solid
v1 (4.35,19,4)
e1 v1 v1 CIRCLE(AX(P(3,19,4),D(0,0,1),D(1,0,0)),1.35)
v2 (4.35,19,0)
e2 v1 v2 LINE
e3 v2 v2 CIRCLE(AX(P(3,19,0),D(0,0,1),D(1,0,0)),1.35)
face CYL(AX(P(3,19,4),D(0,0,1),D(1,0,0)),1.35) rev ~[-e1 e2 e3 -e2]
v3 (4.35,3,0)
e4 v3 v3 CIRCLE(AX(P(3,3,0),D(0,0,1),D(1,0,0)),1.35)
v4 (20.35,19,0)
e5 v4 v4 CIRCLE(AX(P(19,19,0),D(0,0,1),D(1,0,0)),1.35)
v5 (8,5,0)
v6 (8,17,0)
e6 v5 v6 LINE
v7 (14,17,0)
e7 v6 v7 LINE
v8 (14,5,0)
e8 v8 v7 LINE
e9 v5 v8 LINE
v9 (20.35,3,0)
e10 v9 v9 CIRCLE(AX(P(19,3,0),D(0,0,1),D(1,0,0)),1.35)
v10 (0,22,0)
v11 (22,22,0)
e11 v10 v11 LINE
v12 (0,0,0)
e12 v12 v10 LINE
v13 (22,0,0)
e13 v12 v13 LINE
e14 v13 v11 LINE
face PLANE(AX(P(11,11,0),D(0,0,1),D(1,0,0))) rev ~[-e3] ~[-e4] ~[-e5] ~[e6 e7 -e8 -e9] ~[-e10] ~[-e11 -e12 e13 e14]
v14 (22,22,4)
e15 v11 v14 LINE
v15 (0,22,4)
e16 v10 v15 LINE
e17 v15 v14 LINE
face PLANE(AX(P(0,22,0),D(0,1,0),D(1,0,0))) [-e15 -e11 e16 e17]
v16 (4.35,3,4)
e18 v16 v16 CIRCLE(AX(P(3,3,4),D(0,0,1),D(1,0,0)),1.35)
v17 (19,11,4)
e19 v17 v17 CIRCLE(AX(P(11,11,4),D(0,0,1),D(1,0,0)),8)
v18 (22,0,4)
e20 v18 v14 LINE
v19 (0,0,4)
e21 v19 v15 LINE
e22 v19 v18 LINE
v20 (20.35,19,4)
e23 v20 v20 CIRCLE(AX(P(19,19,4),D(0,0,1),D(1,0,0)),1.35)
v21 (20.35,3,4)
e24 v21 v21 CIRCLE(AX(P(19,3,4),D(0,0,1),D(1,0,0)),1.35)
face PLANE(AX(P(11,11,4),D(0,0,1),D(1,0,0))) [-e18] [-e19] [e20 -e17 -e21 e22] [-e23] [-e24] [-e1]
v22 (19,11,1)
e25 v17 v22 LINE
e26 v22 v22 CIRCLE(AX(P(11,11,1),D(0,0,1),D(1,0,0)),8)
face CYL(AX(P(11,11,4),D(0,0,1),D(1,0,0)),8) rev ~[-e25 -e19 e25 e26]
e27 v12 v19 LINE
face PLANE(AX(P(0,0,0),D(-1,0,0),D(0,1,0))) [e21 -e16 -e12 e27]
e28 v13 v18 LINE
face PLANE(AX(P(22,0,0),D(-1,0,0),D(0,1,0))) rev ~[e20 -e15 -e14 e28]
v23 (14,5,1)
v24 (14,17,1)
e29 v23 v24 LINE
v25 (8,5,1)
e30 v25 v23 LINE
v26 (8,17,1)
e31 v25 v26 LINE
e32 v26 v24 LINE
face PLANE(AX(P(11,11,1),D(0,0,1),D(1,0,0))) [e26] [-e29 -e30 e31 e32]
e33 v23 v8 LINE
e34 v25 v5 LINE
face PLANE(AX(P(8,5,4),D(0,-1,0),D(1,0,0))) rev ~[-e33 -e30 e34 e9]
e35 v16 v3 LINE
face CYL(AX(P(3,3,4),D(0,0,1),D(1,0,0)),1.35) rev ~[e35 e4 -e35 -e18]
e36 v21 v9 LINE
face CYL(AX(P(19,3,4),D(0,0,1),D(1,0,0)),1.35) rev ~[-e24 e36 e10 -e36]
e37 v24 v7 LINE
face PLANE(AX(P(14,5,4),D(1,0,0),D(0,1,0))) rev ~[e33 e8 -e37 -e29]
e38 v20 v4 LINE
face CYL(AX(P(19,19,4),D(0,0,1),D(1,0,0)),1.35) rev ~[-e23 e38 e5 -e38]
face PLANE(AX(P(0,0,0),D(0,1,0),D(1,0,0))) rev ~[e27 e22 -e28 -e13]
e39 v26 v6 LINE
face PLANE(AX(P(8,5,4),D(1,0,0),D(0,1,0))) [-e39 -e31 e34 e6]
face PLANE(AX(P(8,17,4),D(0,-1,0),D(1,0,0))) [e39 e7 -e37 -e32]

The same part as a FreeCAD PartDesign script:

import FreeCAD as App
import Part
import Sketcher


def add_polygon(sketch, points):
    """Adds a closed chain of lines whose ends are joined by coincident constraints."""
    first, n = sketch.GeometryCount, len(points)
    for a, b in zip(points, points[1:] + points[:1]):
        sketch.addGeometry(Part.LineSegment(App.Vector(*a, 0), App.Vector(*b, 0)), False)
    for i in range(n):
        sketch.addConstraint(Sketcher.Constraint("Coincident", first + i, 2, first + (i + 1) % n, 1))

doc = App.newDocument("Part")
body = doc.addObject("PartDesign::Body", "Body")

# Sketch on XY plane
sketch1 = body.newObject("Sketcher::SketchObject", "Sketch")
sketch1.AttachmentSupport = (doc.getObject("XY_Plane"), [""])
sketch1.MapMode = "FlatFace"
add_polygon(sketch1, [(0, 22), (0, 0), (22, 0), (22, 22)])  # lines 0-3
sketch1.addConstraint([
    Sketcher.Constraint("Vertical", 0),
    Sketcher.Constraint("Horizontal", 1),
    Sketcher.Constraint("Vertical", 2),
    Sketcher.Constraint("Horizontal", 3),
    Sketcher.Constraint("Coincident", 0, 2, -1, 1),
    Sketcher.Constraint("Equal", 3, 0),
    Sketcher.Constraint("DistanceX", 1, 1, 1, 2, 22.0),
])
pad1 = body.newObject("PartDesign::Pad", "Pad")
pad1.Profile = sketch1
pad1.Length = 4

# Sketch on XY plane
sketch2 = body.newObject("Sketcher::SketchObject", "Sketch001")
sketch2.AttachmentSupport = (doc.getObject("XY_Plane"), [""])
sketch2.MapMode = "FlatFace"
sketch2.AttachmentOffset = App.Placement(App.Vector(0, 0, 4), App.Rotation())
sketch2.addGeometry([
    Part.Circle(App.Vector(3, 3, 0), App.Vector(0, 0, 1), 1.4),
    Part.Circle(App.Vector(3, 19, 0), App.Vector(0, 0, 1), 1.4),
    Part.Circle(App.Vector(19, 3, 0), App.Vector(0, 0, 1), 1.4),
    Part.Circle(App.Vector(19, 19, 0), App.Vector(0, 0, 1), 1.4),
], False)
sketch2.addConstraint([
    Sketcher.Constraint("Equal", 0, 1),
    Sketcher.Constraint("Equal", 1, 2),
    Sketcher.Constraint("Equal", 2, 3),
    Sketcher.Constraint("Horizontal", 0, 3, 2, 3),
    Sketcher.Constraint("Horizontal", 1, 3, 3, 3),
    Sketcher.Constraint("Vertical", 0, 3, 1, 3),
    Sketcher.Constraint("Vertical", 2, 3, 3, 3),
    Sketcher.Constraint("Diameter", 0, 2.7),
    Sketcher.Constraint("DistanceX", -1, 1, 0, 3, 3.0),
    Sketcher.Constraint("DistanceY", -1, 1, 0, 3, 3.0),
    Sketcher.Constraint("DistanceY", -1, 1, 1, 3, 19.0),
    Sketcher.Constraint("DistanceX", -1, 1, 2, 3, 19.0),
])
pocket1 = body.newObject("PartDesign::Pocket", "Pocket")
pocket1.Profile = sketch2
pocket1.Type = "ThroughAll"

# Sketch on XY plane
sketch3 = body.newObject("Sketcher::SketchObject", "Sketch002")
sketch3.AttachmentSupport = (doc.getObject("XY_Plane"), [""])
sketch3.MapMode = "FlatFace"
sketch3.AttachmentOffset = App.Placement(App.Vector(0, 0, 4), App.Rotation())
add_polygon(sketch3, [(8, 17), (8, 5), (14, 5), (14, 17)])  # lines 0-3
sketch3.addConstraint([
    Sketcher.Constraint("Vertical", 0),
    Sketcher.Constraint("Horizontal", 1),
    Sketcher.Constraint("Vertical", 2),
    Sketcher.Constraint("Horizontal", 3),
    Sketcher.Constraint("DistanceX", 1, 1, 1, 2, 6.0),
    Sketcher.Constraint("DistanceY", 0, 2, 0, 1, 12.0),
    Sketcher.Constraint("DistanceX", -1, 1, 0, 2, 8.0),
    Sketcher.Constraint("DistanceY", -1, 1, 0, 2, 5.0),
])
pocket2 = body.newObject("PartDesign::Pocket", "Pocket001")
pocket2.Profile = sketch3
pocket2.Type = "ThroughAll"

# Sketch on XY plane
sketch4 = body.newObject("Sketcher::SketchObject", "Sketch003")
sketch4.AttachmentSupport = (doc.getObject("XY_Plane"), [""])
sketch4.MapMode = "FlatFace"
sketch4.AttachmentOffset = App.Placement(App.Vector(0, 0, 4), App.Rotation())
sketch4.addGeometry(Part.Circle(App.Vector(11, 11, 0), App.Vector(0, 0, 1), 8), False)  # 0
add_polygon(sketch4, [(14, 5), (8, 5), (8, 17), (14, 17)])  # lines 1-4
sketch4.addConstraint([
    Sketcher.Constraint("Horizontal", 1),
    Sketcher.Constraint("Vertical", 2),
    Sketcher.Constraint("Horizontal", 3),
    Sketcher.Constraint("Vertical", 4),
    Sketcher.Constraint("Diameter", 0, 16.0),
    Sketcher.Constraint("DistanceX", 1, 2, 1, 1, 6.0),
    Sketcher.Constraint("DistanceY", 2, 1, 2, 2, 12.0),
    Sketcher.Constraint("DistanceX", -1, 1, 0, 3, 11.0),
    Sketcher.Constraint("DistanceY", -1, 1, 0, 3, 11.0),
    Sketcher.Constraint("DistanceX", -1, 1, 1, 2, 8.0),
    Sketcher.Constraint("DistanceY", -1, 1, 1, 2, 5.0),
])
pocket3 = body.newObject("PartDesign::Pocket", "Pocket002")
pocket3.Profile = sketch4
pocket3.Length = 3

doc.recompute()
